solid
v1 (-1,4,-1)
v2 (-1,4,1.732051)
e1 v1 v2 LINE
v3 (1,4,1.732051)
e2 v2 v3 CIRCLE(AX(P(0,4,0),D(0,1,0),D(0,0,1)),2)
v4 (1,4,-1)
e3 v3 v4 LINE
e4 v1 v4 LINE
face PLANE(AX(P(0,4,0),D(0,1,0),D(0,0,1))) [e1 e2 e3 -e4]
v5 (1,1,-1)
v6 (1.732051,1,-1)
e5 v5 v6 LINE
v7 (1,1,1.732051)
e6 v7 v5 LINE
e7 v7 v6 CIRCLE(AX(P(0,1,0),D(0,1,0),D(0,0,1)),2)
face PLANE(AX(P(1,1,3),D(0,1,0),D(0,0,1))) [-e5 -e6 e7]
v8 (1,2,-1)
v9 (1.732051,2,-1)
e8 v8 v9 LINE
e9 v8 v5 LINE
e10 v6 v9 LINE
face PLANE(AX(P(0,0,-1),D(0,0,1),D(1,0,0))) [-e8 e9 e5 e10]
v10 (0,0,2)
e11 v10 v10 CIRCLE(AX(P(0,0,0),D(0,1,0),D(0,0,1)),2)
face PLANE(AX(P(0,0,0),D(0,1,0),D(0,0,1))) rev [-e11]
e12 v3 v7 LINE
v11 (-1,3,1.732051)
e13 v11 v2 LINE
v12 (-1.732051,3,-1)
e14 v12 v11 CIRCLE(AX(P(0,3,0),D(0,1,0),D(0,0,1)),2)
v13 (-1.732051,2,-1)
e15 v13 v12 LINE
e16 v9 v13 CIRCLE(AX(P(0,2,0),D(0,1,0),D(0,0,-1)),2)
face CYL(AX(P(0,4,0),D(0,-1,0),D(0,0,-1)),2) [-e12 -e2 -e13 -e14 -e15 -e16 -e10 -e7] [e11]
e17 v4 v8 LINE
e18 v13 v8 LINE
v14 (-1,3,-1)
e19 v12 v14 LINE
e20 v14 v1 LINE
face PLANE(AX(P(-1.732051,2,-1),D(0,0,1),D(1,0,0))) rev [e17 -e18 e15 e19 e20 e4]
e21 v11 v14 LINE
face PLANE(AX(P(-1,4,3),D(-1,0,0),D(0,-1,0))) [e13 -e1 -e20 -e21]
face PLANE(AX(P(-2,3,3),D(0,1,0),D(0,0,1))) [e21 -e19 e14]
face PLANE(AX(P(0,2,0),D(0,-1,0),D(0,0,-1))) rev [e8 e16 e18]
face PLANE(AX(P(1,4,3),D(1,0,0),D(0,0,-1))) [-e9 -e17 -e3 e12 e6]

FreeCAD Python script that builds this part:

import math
import FreeCAD as App
import Part
import Sketcher
Q = App.Units.Quantity

doc = App.newDocument("Part")
params = doc.addObject("Spreadsheet::Sheet", "Params")
for row, (alias, value) in enumerate([
    ("sketch1_diameter", "4 mm"),
    ("pad1_length", "4 mm"),
    ("sketch2_width", "1 mm"),
    ("sketch2_height", "3 mm"),
    ("pocket1_length", "3 mm"),
    ("pocket1_length2", "1 mm"),
    ("sketch3_radius", "2 mm"),
    ("pocket2_length", "2 mm"),
], start=1):
    params.set(f"A{row}", alias)
    params.set(f"B{row}", "=" + value)
    params.setAlias(f"B{row}", alias)

body = doc.addObject("PartDesign::Body", "Body")

# Sketch on XZ plane
sketch1 = body.newObject("Sketcher::SketchObject", "Sketch")
sketch1.AttachmentSupport = (doc.getObject("XZ_Plane"), [""])
sketch1.MapMode = "FlatFace"
sketch1.addGeometry(Part.Circle(App.Vector(0, 0, 0), App.Vector(0, 0, 1), 2), False)
sketch1.addConstraint([
    Sketcher.Constraint("Coincident", 0, 3, -1, 1),
    Sketcher.Constraint("Diameter", 0, Q("4 mm")),
])
sketch1.setExpression("Constraints[1]", "Params.sketch1_diameter")
pad1 = body.newObject("PartDesign::Pad", "Pad")
pad1.Profile = sketch1
pad1.setExpression("Length", "Params.pad1_length")
pad1.Reversed = True

# Sketch on XY plane
sketch2 = body.newObject("Sketcher::SketchObject", "Sketch001")
sketch2.AttachmentSupport = (doc.getObject("XY_Plane"), [""])
sketch2.MapMode = "FlatFace"
sketch2.addGeometry([
    Part.LineSegment(App.Vector(1, 4, 0), App.Vector(1, 1, 0)),  # 0
    Part.LineSegment(App.Vector(1, 1, 0), App.Vector(2, 1, 0)),  # 1
    Part.LineSegment(App.Vector(2, 1, 0), App.Vector(2, 4, 0)),  # 2
    Part.LineSegment(App.Vector(2, 4, 0), App.Vector(1, 4, 0)),  # 3
    Part.LineSegment(App.Vector(-2, 4, 0), App.Vector(-2, 3, 0)),  # 4
    Part.LineSegment(App.Vector(-2, 3, 0), App.Vector(-1, 3, 0)),  # 5
    Part.LineSegment(App.Vector(-1, 3, 0), App.Vector(-1, 4, 0)),  # 6
    Part.LineSegment(App.Vector(-1, 4, 0), App.Vector(-2, 4, 0)),  # 7
], False)
sketch2.addConstraint([
    Sketcher.Constraint("Coincident", 0, 2, 1, 1),
    Sketcher.Constraint("Coincident", 1, 2, 2, 1),
    Sketcher.Constraint("Coincident", 2, 2, 3, 1),
    Sketcher.Constraint("Coincident", 3, 2, 0, 1),
    Sketcher.Constraint("Coincident", 4, 2, 5, 1),
    Sketcher.Constraint("Coincident", 5, 2, 6, 1),
    Sketcher.Constraint("Coincident", 6, 2, 7, 1),
    Sketcher.Constraint("Coincident", 7, 2, 4, 1),
    Sketcher.Constraint("Vertical", 0),
    Sketcher.Constraint("Horizontal", 1),
    Sketcher.Constraint("Vertical", 2),
    Sketcher.Constraint("Horizontal", 3),
    Sketcher.Constraint("Vertical", 4),
    Sketcher.Constraint("Horizontal", 5),
    Sketcher.Constraint("Vertical", 6),
    Sketcher.Constraint("Horizontal", 7),
    Sketcher.Constraint("Symmetric", 3, 2, 6, 2, -2),
    Sketcher.Constraint("Equal", 3, 5),
    Sketcher.Constraint("Equal", 7, 4),
    Sketcher.Constraint("DistanceX", 1, 1, 1, 2, Q("1 mm")),
    Sketcher.Constraint("DistanceY", 0, 2, 0, 1, Q("3 mm")),
    Sketcher.Constraint("DistanceX", -1, 1, 0, 2, Q("1 mm")),
    Sketcher.Constraint("DistanceY", -1, 1, 0, 2, Q("1 mm")),
])
sketch2.setExpression("Constraints[19]", "Params.sketch2_width")
sketch2.setExpression("Constraints[20]", "Params.sketch2_height")
pocket1 = body.newObject("PartDesign::Pocket", "Pocket")
pocket1.Profile = sketch2
pocket1.Type = "TwoLengths"
pocket1.setExpression("Length", "Params.pocket1_length")
pocket1.setExpression("Length2", "Params.pocket1_length2")
pocket1.Reversed = True

# Sketch on XZ plane
sketch3 = body.newObject("Sketcher::SketchObject", "Sketch002")
sketch3.AttachmentSupport = (doc.getObject("XZ_Plane"), [""])
sketch3.MapMode = "FlatFace"
sketch3.AttachmentOffset = App.Placement(App.Vector(0, 0, -4), App.Rotation())
sketch3.addGeometry([
    Part.LineSegment(App.Vector(-1.732051, -1, 0), App.Vector(1.732051, -1, 0)),
    Part.ArcOfCircle(Part.Circle(App.Vector(0, 0, 0), App.Vector(0, 0, 1), 2), math.radians(-150), math.radians(-30)),
], False)
sketch3.addConstraint([
    Sketcher.Constraint("Coincident", 0, 1, 1, 1),
    Sketcher.Constraint("Coincident", 1, 2, 0, 2),
    Sketcher.Constraint("Horizontal", 0),
    Sketcher.Constraint("Coincident", 1, 3, -1, 1),
    Sketcher.Constraint("Radius", 1, Q("2 mm")),
    Sketcher.Constraint("DistanceY", 0, 1, -1, 1, Q("1 mm")),
])
sketch3.setExpression("Constraints[4]", "Params.sketch3_radius")
pocket2 = body.newObject("PartDesign::Pocket", "Pocket001")
pocket2.Profile = sketch3
pocket2.setExpression("Length", "Params.pocket2_length")
pocket2.Reversed = True

doc.recompute()
